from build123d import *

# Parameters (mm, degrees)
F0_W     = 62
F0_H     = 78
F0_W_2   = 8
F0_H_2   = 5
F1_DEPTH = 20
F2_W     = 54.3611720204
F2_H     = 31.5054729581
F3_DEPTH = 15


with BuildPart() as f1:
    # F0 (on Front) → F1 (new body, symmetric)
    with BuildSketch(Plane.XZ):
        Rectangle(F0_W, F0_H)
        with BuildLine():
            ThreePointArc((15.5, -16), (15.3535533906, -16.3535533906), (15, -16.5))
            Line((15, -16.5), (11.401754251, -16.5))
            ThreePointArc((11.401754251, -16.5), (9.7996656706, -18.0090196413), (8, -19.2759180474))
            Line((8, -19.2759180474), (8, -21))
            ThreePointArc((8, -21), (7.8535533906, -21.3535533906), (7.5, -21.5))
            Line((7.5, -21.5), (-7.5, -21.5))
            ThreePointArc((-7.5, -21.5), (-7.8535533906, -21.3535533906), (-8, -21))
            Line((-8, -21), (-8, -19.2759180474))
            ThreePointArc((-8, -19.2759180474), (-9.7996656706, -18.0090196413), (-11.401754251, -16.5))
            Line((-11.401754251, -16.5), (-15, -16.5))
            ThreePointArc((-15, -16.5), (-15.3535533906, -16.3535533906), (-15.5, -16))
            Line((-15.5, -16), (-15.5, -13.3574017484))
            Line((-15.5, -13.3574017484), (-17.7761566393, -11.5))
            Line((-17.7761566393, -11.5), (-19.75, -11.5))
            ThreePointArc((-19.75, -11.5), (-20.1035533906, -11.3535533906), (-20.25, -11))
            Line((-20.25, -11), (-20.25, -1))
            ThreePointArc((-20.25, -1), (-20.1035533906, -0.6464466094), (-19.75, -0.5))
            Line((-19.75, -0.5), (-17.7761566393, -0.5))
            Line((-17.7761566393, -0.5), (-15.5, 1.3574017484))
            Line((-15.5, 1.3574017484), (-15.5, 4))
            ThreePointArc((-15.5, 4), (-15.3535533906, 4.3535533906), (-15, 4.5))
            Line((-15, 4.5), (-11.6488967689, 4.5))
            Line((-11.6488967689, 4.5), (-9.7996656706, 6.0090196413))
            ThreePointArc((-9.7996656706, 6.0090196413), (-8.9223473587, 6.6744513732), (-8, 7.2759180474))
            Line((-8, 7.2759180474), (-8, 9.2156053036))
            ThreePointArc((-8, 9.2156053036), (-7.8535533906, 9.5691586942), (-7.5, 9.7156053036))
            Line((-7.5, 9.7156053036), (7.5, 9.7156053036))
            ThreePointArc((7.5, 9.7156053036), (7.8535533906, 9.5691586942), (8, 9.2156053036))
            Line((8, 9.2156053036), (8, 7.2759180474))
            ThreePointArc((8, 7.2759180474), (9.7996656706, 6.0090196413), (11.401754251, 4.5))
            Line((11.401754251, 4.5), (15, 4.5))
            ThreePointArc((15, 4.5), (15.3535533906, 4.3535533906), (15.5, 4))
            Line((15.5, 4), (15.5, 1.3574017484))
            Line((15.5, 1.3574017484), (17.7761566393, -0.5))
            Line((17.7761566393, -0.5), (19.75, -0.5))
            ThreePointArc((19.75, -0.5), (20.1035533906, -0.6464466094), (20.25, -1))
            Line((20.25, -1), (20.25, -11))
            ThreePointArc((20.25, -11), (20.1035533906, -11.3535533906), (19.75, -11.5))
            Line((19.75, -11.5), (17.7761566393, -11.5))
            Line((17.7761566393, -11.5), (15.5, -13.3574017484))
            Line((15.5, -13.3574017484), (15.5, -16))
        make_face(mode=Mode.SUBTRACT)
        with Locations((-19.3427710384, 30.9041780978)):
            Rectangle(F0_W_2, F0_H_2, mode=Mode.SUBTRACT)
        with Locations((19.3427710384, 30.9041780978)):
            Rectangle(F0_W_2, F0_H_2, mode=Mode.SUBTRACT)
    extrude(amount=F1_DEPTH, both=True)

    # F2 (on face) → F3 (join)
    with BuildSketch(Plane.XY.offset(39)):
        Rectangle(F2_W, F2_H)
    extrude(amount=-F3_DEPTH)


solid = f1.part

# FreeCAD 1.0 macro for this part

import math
import FreeCAD as App
import Part
import Sketcher
from FreeCAD import Vector


def add_polygon(sketch, points):
    """Adds a closed chain of lines whose ends are joined by coincident constraints."""
    first, n = sketch.GeometryCount, len(points)
    for a, b in zip(points, points[1:] + points[:1]):
        sketch.addGeometry(Part.LineSegment(App.Vector(*a, 0), App.Vector(*b, 0)), False)
    for i in range(n):
        sketch.addConstraint(Sketcher.Constraint("Coincident", first + i, 2, first + (i + 1) % n, 1))

doc = App.newDocument("Part")
params = doc.addObject("Spreadsheet::Sheet", "Params")
for row, (alias, value) in enumerate([
    ("sketch1_radius", "0.5 mm"),
    ("sketch1_radius2", "15.5 mm"),
    ("sketch1_width", "62 mm"),
    ("sketch1_width2", "15 mm"),
    ("sketch1_width3", "8 mm"),
    ("pad1_length", "40 mm"),
    ("pad2_length", "15 mm"),
], start=1):
    params.set(f"A{row}", alias)
    params.set(f"B{row}", "=" + value)
    params.setAlias(f"B{row}", alias)

body = doc.addObject("PartDesign::Body", "Body")

# Sketch on XZ plane
sketch1 = body.newObject("Sketcher::SketchObject", "Sketch")
sketch1.AttachmentSupport = (doc.getObject("XZ_Plane"), [""])
sketch1.MapMode = "FlatFace"
add_polygon(sketch1, [(-31, 39), (-31, -39), (31, -39), (31, 39)])  # lines 0-3
sketch1.addGeometry(Part.LineSegment(Vector(15.5, -13.357402, 0), Vector(15.5, -16, 0)), False)  # 4
sketch1.addGeometry(Part.ArcOfCircle(Part.Circle(Vector(15, -16, 0), Vector(0, 0, 1), 0.5), math.radians(-90), math.radians(0)), False)  # 5
sketch1.addGeometry(Part.LineSegment(Vector(15, -16.5, 0), Vector(11.401754, -16.5, 0)), False)  # 6
sketch1.addGeometry(Part.ArcOfCircle(Part.Circle(Vector(0, -6, 0), Vector(0, 0, 1), 15.5), math.radians(-58.927049), math.radians(-42.64231)), False)  # 7
sketch1.addGeometry(Part.LineSegment(Vector(8, -19.275918, 0), Vector(8, -21, 0)), False)  # 8
sketch1.addGeometry(Part.ArcOfCircle(Part.Circle(Vector(7.5, -21, 0), Vector(0, 0, 1), 0.5), math.radians(-90), math.radians(0)), False)  # 9
sketch1.addGeometry(Part.LineSegment(Vector(7.5, -21.5, 0), Vector(-7.5, -21.5, 0)), False)  # 10
sketch1.addGeometry(Part.ArcOfCircle(Part.Circle(Vector(-7.5, -21, 0), Vector(0, 0, 1), 0.5), math.radians(180), math.radians(270)), False)  # 11
sketch1.addGeometry(Part.LineSegment(Vector(-8, -21, 0), Vector(-8, -19.275918, 0)), False)  # 12
sketch1.addGeometry(Part.ArcOfCircle(Part.Circle(Vector(0, -6, 0), Vector(0, 0, 1), 15.5), math.radians(-137.35769), math.radians(-121.072951)), False)  # 13
sketch1.addGeometry(Part.LineSegment(Vector(-11.401754, -16.5, 0), Vector(-15, -16.5, 0)), False)  # 14
sketch1.addGeometry(Part.ArcOfCircle(Part.Circle(Vector(-15, -16, 0), Vector(0, 0, 1), 0.5), math.radians(180), math.radians(270)), False)  # 15
sketch1.addGeometry(Part.LineSegment(Vector(-15.5, -16, 0), Vector(-15.5, -13.357402, 0)), False)  # 16
sketch1.addGeometry(Part.LineSegment(Vector(-15.5, -13.357402, 0), Vector(-17.776157, -11.5, 0)), False)  # 17
sketch1.addGeometry(Part.LineSegment(Vector(-17.776157, -11.5, 0), Vector(-19.75, -11.5, 0)), False)  # 18
sketch1.addGeometry(Part.ArcOfCircle(Part.Circle(Vector(-19.75, -11, 0), Vector(0, 0, 1), 0.5), math.radians(180), math.radians(270)), False)  # 19
sketch1.addGeometry(Part.LineSegment(Vector(-20.25, -11, 0), Vector(-20.25, -1, 0)), False)  # 20
sketch1.addGeometry(Part.ArcOfCircle(Part.Circle(Vector(-19.75, -1, 0), Vector(0, 0, 1), 0.5), math.radians(90), math.radians(180)), False)  # 21
sketch1.addGeometry(Part.LineSegment(Vector(-19.75, -0.5, 0), Vector(-17.776157, -0.5, 0)), False)  # 22
sketch1.addGeometry(Part.LineSegment(Vector(-17.776157, -0.5, 0), Vector(-15.5, 1.357402, 0)), False)  # 23
sketch1.addGeometry(Part.LineSegment(Vector(-15.5, 1.357402, 0), Vector(-15.5, 4, 0)), False)  # 24
sketch1.addGeometry(Part.ArcOfCircle(Part.Circle(Vector(-15, 4, 0), Vector(0, 0, 1), 0.5), math.radians(90), math.radians(180)), False)  # 25
sketch1.addGeometry(Part.LineSegment(Vector(-15, 4.5, 0), Vector(-11.648897, 4.5, 0)), False)  # 26
sketch1.addGeometry(Part.LineSegment(Vector(-11.648897, 4.5, 0), Vector(-9.799666, 6.00902, 0)), False)  # 27
sketch1.addGeometry(Part.ArcOfCircle(Part.Circle(Vector(0, -6, 0), Vector(0, 0, 1), 15.5), math.radians(121.072951), math.radians(129.21532)), False)  # 28
sketch1.addGeometry(Part.LineSegment(Vector(-8, 7.275918, 0), Vector(-8, 9.215605, 0)), False)  # 29
sketch1.addGeometry(Part.ArcOfCircle(Part.Circle(Vector(-7.5, 9.215605, 0), Vector(0, 0, 1), 0.5), math.radians(90), math.radians(180)), False)  # 30
sketch1.addGeometry(Part.LineSegment(Vector(-7.5, 9.715605, 0), Vector(7.5, 9.715605, 0)), False)  # 31
sketch1.addGeometry(Part.ArcOfCircle(Part.Circle(Vector(7.5, 9.215605, 0), Vector(0, 0, 1), 0.5), math.radians(0), math.radians(90)), False)  # 32
sketch1.addGeometry(Part.LineSegment(Vector(8, 9.215605, 0), Vector(8, 7.275918, 0)), False)  # 33
sketch1.addGeometry(Part.ArcOfCircle(Part.Circle(Vector(0, -6, 0), Vector(0, 0, 1), 15.5), math.radians(42.64231), math.radians(58.927049)), False)  # 34
sketch1.addGeometry(Part.LineSegment(Vector(11.401754, 4.5, 0), Vector(15, 4.5, 0)), False)  # 35
sketch1.addGeometry(Part.ArcOfCircle(Part.Circle(Vector(15, 4, 0), Vector(0, 0, 1), 0.5), math.radians(0), math.radians(90)), False)  # 36
sketch1.addGeometry(Part.LineSegment(Vector(15.5, 4, 0), Vector(15.5, 1.357402, 0)), False)  # 37
sketch1.addGeometry(Part.LineSegment(Vector(15.5, 1.357402, 0), Vector(17.776157, -0.5, 0)), False)  # 38
sketch1.addGeometry(Part.LineSegment(Vector(17.776157, -0.5, 0), Vector(19.75, -0.5, 0)), False)  # 39
sketch1.addGeometry(Part.ArcOfCircle(Part.Circle(Vector(19.75, -1, 0), Vector(0, 0, 1), 0.5), math.radians(0), math.radians(90)), False)  # 40
sketch1.addGeometry(Part.LineSegment(Vector(20.25, -1, 0), Vector(20.25, -11, 0)), False)  # 41
sketch1.addGeometry(Part.ArcOfCircle(Part.Circle(Vector(19.75, -11, 0), Vector(0, 0, 1), 0.5), math.radians(-90), math.radians(0)), False)  # 42
sketch1.addGeometry(Part.LineSegment(Vector(19.75, -11.5, 0), Vector(17.776157, -11.5, 0)), False)  # 43
sketch1.addGeometry(Part.LineSegment(Vector(17.776157, -11.5, 0), Vector(15.5, -13.357402, 0)), False)  # 44
add_polygon(sketch1, [(-15.342771, 28.404178), (-23.342771, 28.404178), (-23.342771, 33.404178), (-15.342771, 33.404178)])  # lines 45-48
add_polygon(sketch1, [(23.342771, 28.404178), (15.342771, 28.404178), (15.342771, 33.404178), (23.342771, 33.404178)])  # lines 49-52
sketch1.addConstraint(Sketcher.Constraint("Tangent", 4, 2, 5, 2))
sketch1.addConstraint(Sketcher.Constraint("Tangent", 5, 1, 6, 1))
sketch1.addConstraint(Sketcher.Constraint("Coincident", 6, 2, 7, 2))
sketch1.addConstraint(Sketcher.Constraint("Coincident", 7, 1, 8, 1))
sketch1.addConstraint(Sketcher.Constraint("Tangent", 8, 2, 9, 2))
sketch1.addConstraint(Sketcher.Constraint("Tangent", 9, 1, 10, 1))
sketch1.addConstraint(Sketcher.Constraint("Tangent", 10, 2, 11, 2))
sketch1.addConstraint(Sketcher.Constraint("Tangent", 11, 1, 12, 1))
sketch1.addConstraint(Sketcher.Constraint("Coincident", 12, 2, 13, 2))
sketch1.addConstraint(Sketcher.Constraint("Coincident", 13, 1, 14, 1))
sketch1.addConstraint(Sketcher.Constraint("Tangent", 14, 2, 15, 2))
sketch1.addConstraint(Sketcher.Constraint("Tangent", 15, 1, 16, 1))
sketch1.addConstraint(Sketcher.Constraint("Coincident", 16, 2, 17, 1))
sketch1.addConstraint(Sketcher.Constraint("Coincident", 17, 2, 18, 1))
sketch1.addConstraint(Sketcher.Constraint("Tangent", 18, 2, 19, 2))
sketch1.addConstraint(Sketcher.Constraint("Tangent", 19, 1, 20, 1))
sketch1.addConstraint(Sketcher.Constraint("Tangent", 20, 2, 21, 2))
sketch1.addConstraint(Sketcher.Constraint("Tangent", 21, 1, 22, 1))
sketch1.addConstraint(Sketcher.Constraint("Coincident", 22, 2, 23, 1))
sketch1.addConstraint(Sketcher.Constraint("Coincident", 23, 2, 24, 1))
sketch1.addConstraint(Sketcher.Constraint("Tangent", 24, 2, 25, 2))
sketch1.addConstraint(Sketcher.Constraint("Tangent", 25, 1, 26, 1))
sketch1.addConstraint(Sketcher.Constraint("Coincident", 26, 2, 27, 1))
sketch1.addConstraint(Sketcher.Constraint("Tangent", 27, 2, 28, 2))
sketch1.addConstraint(Sketcher.Constraint("Coincident", 28, 1, 29, 1))
sketch1.addConstraint(Sketcher.Constraint("Tangent", 29, 2, 30, 2))
sketch1.addConstraint(Sketcher.Constraint("Tangent", 30, 1, 31, 1))
sketch1.addConstraint(Sketcher.Constraint("Tangent", 31, 2, 32, 2))
sketch1.addConstraint(Sketcher.Constraint("Tangent", 32, 1, 33, 1))
sketch1.addConstraint(Sketcher.Constraint("Coincident", 33, 2, 34, 2))
sketch1.addConstraint(Sketcher.Constraint("Coincident", 34, 1, 35, 1))
sketch1.addConstraint(Sketcher.Constraint("Tangent", 35, 2, 36, 2))
sketch1.addConstraint(Sketcher.Constraint("Tangent", 36, 1, 37, 1))
sketch1.addConstraint(Sketcher.Constraint("Coincident", 37, 2, 38, 1))
sketch1.addConstraint(Sketcher.Constraint("Coincident", 38, 2, 39, 1))
sketch1.addConstraint(Sketcher.Constraint("Tangent", 39, 2, 40, 2))
sketch1.addConstraint(Sketcher.Constraint("Tangent", 40, 1, 41, 1))
sketch1.addConstraint(Sketcher.Constraint("Tangent", 41, 2, 42, 2))
sketch1.addConstraint(Sketcher.Constraint("Tangent", 42, 1, 43, 1))
sketch1.addConstraint(Sketcher.Constraint("Coincident", 43, 2, 44, 1))
sketch1.addConstraint(Sketcher.Constraint("Coincident", 44, 2, 4, 1))
sketch1.addConstraint(Sketcher.Constraint("Vertical", 0))
sketch1.addConstraint(Sketcher.Constraint("Horizontal", 1))
sketch1.addConstraint(Sketcher.Constraint("Vertical", 2))
sketch1.addConstraint(Sketcher.Constraint("Horizontal", 3))
sketch1.addConstraint(Sketcher.Constraint("Vertical", 4))
sketch1.addConstraint(Sketcher.Constraint("Horizontal", 6))
sketch1.addConstraint(Sketcher.Constraint("Vertical", 8))
sketch1.addConstraint(Sketcher.Constraint("Horizontal", 10))
sketch1.addConstraint(Sketcher.Constraint("Vertical", 12))
sketch1.addConstraint(Sketcher.Constraint("Horizontal", 14))
sketch1.addConstraint(Sketcher.Constraint("Vertical", 16))
sketch1.addConstraint(Sketcher.Constraint("Horizontal", 18))
sketch1.addConstraint(Sketcher.Constraint("Vertical", 20))
sketch1.addConstraint(Sketcher.Constraint("Horizontal", 22))
sketch1.addConstraint(Sketcher.Constraint("Vertical", 24))
sketch1.addConstraint(Sketcher.Constraint("Horizontal", 26))
sketch1.addConstraint(Sketcher.Constraint("Vertical", 29))
sketch1.addConstraint(Sketcher.Constraint("Horizontal", 31))
sketch1.addConstraint(Sketcher.Constraint("Vertical", 33))
sketch1.addConstraint(Sketcher.Constraint("Horizontal", 35))
sketch1.addConstraint(Sketcher.Constraint("Vertical", 37))
sketch1.addConstraint(Sketcher.Constraint("Horizontal", 39))
sketch1.addConstraint(Sketcher.Constraint("Vertical", 41))
sketch1.addConstraint(Sketcher.Constraint("Horizontal", 43))
sketch1.addConstraint(Sketcher.Constraint("Horizontal", 45))
sketch1.addConstraint(Sketcher.Constraint("Vertical", 46))
sketch1.addConstraint(Sketcher.Constraint("Horizontal", 47))
sketch1.addConstraint(Sketcher.Constraint("Vertical", 48))
sketch1.addConstraint(Sketcher.Constraint("Horizontal", 49))
sketch1.addConstraint(Sketcher.Constraint("Vertical", 50))
sketch1.addConstraint(Sketcher.Constraint("Horizontal", 51))
sketch1.addConstraint(Sketcher.Constraint("Vertical", 52))
sketch1.addConstraint(Sketcher.Constraint("Coincident", 13, 3, 7, 3))
sketch1.addConstraint(Sketcher.Constraint("Coincident", 28, 3, 7, 3))
sketch1.addConstraint(Sketcher.Constraint("Coincident", 34, 3, 7, 3))
sketch1.addConstraint(Sketcher.Constraint("Equal", 5, 9))
sketch1.addConstraint(Sketcher.Constraint("Equal", 9, 11))
sketch1.addConstraint(Sketcher.Constraint("Equal", 7, 13))
sketch1.addConstraint(Sketcher.Constraint("Equal", 11, 15))
sketch1.addConstraint(Sketcher.Constraint("Equal", 15, 19))
sketch1.addConstraint(Sketcher.Constraint("Equal", 19, 21))
sketch1.addConstraint(Sketcher.Constraint("Equal", 21, 25))
sketch1.addConstraint(Sketcher.Constraint("Equal", 13, 28))
sketch1.addConstraint(Sketcher.Constraint("Equal", 25, 30))
sketch1.addConstraint(Sketcher.Constraint("Equal", 30, 32))
sketch1.addConstraint(Sketcher.Constraint("Equal", 28, 34))
sketch1.addConstraint(Sketcher.Constraint("Equal", 32, 36))
sketch1.addConstraint(Sketcher.Constraint("Equal", 36, 40))
sketch1.addConstraint(Sketcher.Constraint("Equal", 40, 42))
sketch1.addConstraint(Sketcher.Constraint("Symmetric", 0, 2, 2, 2, -1, 1))
sketch1.addConstraint(Sketcher.Constraint("Symmetric", 5, 3, 15, 3, -2))
sketch1.addConstraint(Sketcher.Constraint("Symmetric", 25, 3, 36, 3, -2))
sketch1.addConstraint(Sketcher.Constraint("Symmetric", 21, 3, 40, 3, -2))
sketch1.addConstraint(Sketcher.Constraint("Symmetric", 7, 1, 12, 2, -2))
sketch1.addConstraint(Sketcher.Constraint("Symmetric", 17, 2, 43, 2, -2))
sketch1.addConstraint(Sketcher.Constraint("Symmetric", 48, 2, 49, 2, -2))
sketch1.addConstraint(Sketcher.Constraint("Symmetric", 46, 2, 51, 2, -2))
sketch1.addConstraint(Sketcher.Constraint("Parallel", 23, 27))
sketch1.addConstraint(Sketcher.Constraint("Parallel", 17, 38))
sketch1.addConstraint(Sketcher.Constraint("Parallel", 27, 44))
sketch1.addConstraint(Sketcher.Constraint("Horizontal", 28, 1, 33, 2))
sketch1.addConstraint(Sketcher.Constraint("Horizontal", 23, 2, 37, 2))
sketch1.addConstraint(Sketcher.Constraint("Horizontal", 16, 2, 44, 2))
sketch1.addConstraint(Sketcher.Constraint("Vertical", 15, 3, 25, 3))
sketch1.addConstraint(Sketcher.Constraint("Vertical", 11, 3, 30, 3))
sketch1.addConstraint(Sketcher.Constraint("Vertical", 17, 2, 22, 2))
sketch1.addConstraint(Sketcher.Constraint("Vertical", 6, 2, 34, 1))
sketch1.addConstraint(Sketcher.Constraint("Equal", 16, 24))
sketch1.addConstraint(Sketcher.Constraint("Radius", 5, 0.5))
sketch1.addConstraint(Sketcher.Constraint("Radius", 7, 15.5))
sketch1.addConstraint(Sketcher.Constraint("DistanceX", 1, 1, 1, 2, 62.0))
sketch1.addConstraint(Sketcher.Constraint("DistanceX", 10, 2, 10, 1, 15.0))
sketch1.addConstraint(Sketcher.Constraint("DistanceX", 45, 2, 45, 1, 8.0))
sketch1.addConstraint(Sketcher.Constraint("DistanceY", 0, 2, 0, 1, 78.0))
sketch1.addConstraint(Sketcher.Constraint("DistanceY", 20, 1, 20, 2, 10.0))
sketch1.addConstraint(Sketcher.Constraint("DistanceY", 46, 1, 46, 2, 5.0))
sketch1.addConstraint(Sketcher.Constraint("DistanceX", -1, 1, 5, 3, 15.0))
sketch1.addConstraint(Sketcher.Constraint("DistanceY", 5, 3, -1, 1, 16.0))
sketch1.addConstraint(Sketcher.Constraint("DistanceY", 7, 3, -1, 1, 6.0))
sketch1.addConstraint(Sketcher.Constraint("DistanceY", 9, 3, -1, 1, 21.0))
sketch1.addConstraint(Sketcher.Constraint("DistanceX", 19, 3, -1, 1, 19.75))
sketch1.addConstraint(Sketcher.Constraint("DistanceY", 4, 2, 4, 1, 2.642598))
sketch1.addConstraint(Sketcher.Constraint("DistanceX", 18, 2, 18, 1, 1.973843))
sketch1.addConstraint(Sketcher.Constraint("DistanceY", 29, 1, 29, 2, 1.939687))
sketch1.addConstraint(Sketcher.Constraint("DistanceX", 45, 2, -1, 1, 23.342771))
sketch1.addConstraint(Sketcher.Constraint("DistanceY", -1, 1, 45, 2, 28.404178))
sketch1.setExpression("Constraints[121]", "Params.sketch1_radius")
sketch1.setExpression("Constraints[122]", "Params.sketch1_radius2")
sketch1.setExpression("Constraints[123]", "Params.sketch1_width")
sketch1.setExpression("Constraints[124]", "Params.sketch1_width2")
sketch1.setExpression("Constraints[125]", "Params.sketch1_width3")
pad1 = body.newObject("PartDesign::Pad", "Pad")
pad1.Profile = sketch1
pad1.setExpression("Length", "Params.pad1_length")
pad1.Midplane = True

# Sketch on XY plane
sketch2 = body.newObject("Sketcher::SketchObject", "Sketch001")
sketch2.AttachmentSupport = (doc.getObject("XY_Plane"), [""])
sketch2.MapMode = "FlatFace"
sketch2.AttachmentOffset = App.Placement(Vector(0, 0, 39), App.Rotation())
add_polygon(sketch2, [(-27.180586, 15.752736), (-27.180586, -15.752736), (27.180586, -15.752736), (27.180586, 15.752736)])  # lines 0-3
sketch2.addConstraint(Sketcher.Constraint("Vertical", 0))
sketch2.addConstraint(Sketcher.Constraint("Horizontal", 1))
sketch2.addConstraint(Sketcher.Constraint("Vertical", 2))
sketch2.addConstraint(Sketcher.Constraint("Horizontal", 3))
sketch2.addConstraint(Sketcher.Constraint("Symmetric", 0, 2, 2, 2, -1, 1))
sketch2.addConstraint(Sketcher.Constraint("DistanceX", 1, 1, 1, 2, 54.361172))
sketch2.addConstraint(Sketcher.Constraint("DistanceY", 0, 2, 0, 1, 31.505473))
pad2 = body.newObject("PartDesign::Pad", "Pad001")
pad2.Profile = sketch2
pad2.setExpression("Length", "Params.pad2_length")
pad2.Reversed = True

doc.recompute()
